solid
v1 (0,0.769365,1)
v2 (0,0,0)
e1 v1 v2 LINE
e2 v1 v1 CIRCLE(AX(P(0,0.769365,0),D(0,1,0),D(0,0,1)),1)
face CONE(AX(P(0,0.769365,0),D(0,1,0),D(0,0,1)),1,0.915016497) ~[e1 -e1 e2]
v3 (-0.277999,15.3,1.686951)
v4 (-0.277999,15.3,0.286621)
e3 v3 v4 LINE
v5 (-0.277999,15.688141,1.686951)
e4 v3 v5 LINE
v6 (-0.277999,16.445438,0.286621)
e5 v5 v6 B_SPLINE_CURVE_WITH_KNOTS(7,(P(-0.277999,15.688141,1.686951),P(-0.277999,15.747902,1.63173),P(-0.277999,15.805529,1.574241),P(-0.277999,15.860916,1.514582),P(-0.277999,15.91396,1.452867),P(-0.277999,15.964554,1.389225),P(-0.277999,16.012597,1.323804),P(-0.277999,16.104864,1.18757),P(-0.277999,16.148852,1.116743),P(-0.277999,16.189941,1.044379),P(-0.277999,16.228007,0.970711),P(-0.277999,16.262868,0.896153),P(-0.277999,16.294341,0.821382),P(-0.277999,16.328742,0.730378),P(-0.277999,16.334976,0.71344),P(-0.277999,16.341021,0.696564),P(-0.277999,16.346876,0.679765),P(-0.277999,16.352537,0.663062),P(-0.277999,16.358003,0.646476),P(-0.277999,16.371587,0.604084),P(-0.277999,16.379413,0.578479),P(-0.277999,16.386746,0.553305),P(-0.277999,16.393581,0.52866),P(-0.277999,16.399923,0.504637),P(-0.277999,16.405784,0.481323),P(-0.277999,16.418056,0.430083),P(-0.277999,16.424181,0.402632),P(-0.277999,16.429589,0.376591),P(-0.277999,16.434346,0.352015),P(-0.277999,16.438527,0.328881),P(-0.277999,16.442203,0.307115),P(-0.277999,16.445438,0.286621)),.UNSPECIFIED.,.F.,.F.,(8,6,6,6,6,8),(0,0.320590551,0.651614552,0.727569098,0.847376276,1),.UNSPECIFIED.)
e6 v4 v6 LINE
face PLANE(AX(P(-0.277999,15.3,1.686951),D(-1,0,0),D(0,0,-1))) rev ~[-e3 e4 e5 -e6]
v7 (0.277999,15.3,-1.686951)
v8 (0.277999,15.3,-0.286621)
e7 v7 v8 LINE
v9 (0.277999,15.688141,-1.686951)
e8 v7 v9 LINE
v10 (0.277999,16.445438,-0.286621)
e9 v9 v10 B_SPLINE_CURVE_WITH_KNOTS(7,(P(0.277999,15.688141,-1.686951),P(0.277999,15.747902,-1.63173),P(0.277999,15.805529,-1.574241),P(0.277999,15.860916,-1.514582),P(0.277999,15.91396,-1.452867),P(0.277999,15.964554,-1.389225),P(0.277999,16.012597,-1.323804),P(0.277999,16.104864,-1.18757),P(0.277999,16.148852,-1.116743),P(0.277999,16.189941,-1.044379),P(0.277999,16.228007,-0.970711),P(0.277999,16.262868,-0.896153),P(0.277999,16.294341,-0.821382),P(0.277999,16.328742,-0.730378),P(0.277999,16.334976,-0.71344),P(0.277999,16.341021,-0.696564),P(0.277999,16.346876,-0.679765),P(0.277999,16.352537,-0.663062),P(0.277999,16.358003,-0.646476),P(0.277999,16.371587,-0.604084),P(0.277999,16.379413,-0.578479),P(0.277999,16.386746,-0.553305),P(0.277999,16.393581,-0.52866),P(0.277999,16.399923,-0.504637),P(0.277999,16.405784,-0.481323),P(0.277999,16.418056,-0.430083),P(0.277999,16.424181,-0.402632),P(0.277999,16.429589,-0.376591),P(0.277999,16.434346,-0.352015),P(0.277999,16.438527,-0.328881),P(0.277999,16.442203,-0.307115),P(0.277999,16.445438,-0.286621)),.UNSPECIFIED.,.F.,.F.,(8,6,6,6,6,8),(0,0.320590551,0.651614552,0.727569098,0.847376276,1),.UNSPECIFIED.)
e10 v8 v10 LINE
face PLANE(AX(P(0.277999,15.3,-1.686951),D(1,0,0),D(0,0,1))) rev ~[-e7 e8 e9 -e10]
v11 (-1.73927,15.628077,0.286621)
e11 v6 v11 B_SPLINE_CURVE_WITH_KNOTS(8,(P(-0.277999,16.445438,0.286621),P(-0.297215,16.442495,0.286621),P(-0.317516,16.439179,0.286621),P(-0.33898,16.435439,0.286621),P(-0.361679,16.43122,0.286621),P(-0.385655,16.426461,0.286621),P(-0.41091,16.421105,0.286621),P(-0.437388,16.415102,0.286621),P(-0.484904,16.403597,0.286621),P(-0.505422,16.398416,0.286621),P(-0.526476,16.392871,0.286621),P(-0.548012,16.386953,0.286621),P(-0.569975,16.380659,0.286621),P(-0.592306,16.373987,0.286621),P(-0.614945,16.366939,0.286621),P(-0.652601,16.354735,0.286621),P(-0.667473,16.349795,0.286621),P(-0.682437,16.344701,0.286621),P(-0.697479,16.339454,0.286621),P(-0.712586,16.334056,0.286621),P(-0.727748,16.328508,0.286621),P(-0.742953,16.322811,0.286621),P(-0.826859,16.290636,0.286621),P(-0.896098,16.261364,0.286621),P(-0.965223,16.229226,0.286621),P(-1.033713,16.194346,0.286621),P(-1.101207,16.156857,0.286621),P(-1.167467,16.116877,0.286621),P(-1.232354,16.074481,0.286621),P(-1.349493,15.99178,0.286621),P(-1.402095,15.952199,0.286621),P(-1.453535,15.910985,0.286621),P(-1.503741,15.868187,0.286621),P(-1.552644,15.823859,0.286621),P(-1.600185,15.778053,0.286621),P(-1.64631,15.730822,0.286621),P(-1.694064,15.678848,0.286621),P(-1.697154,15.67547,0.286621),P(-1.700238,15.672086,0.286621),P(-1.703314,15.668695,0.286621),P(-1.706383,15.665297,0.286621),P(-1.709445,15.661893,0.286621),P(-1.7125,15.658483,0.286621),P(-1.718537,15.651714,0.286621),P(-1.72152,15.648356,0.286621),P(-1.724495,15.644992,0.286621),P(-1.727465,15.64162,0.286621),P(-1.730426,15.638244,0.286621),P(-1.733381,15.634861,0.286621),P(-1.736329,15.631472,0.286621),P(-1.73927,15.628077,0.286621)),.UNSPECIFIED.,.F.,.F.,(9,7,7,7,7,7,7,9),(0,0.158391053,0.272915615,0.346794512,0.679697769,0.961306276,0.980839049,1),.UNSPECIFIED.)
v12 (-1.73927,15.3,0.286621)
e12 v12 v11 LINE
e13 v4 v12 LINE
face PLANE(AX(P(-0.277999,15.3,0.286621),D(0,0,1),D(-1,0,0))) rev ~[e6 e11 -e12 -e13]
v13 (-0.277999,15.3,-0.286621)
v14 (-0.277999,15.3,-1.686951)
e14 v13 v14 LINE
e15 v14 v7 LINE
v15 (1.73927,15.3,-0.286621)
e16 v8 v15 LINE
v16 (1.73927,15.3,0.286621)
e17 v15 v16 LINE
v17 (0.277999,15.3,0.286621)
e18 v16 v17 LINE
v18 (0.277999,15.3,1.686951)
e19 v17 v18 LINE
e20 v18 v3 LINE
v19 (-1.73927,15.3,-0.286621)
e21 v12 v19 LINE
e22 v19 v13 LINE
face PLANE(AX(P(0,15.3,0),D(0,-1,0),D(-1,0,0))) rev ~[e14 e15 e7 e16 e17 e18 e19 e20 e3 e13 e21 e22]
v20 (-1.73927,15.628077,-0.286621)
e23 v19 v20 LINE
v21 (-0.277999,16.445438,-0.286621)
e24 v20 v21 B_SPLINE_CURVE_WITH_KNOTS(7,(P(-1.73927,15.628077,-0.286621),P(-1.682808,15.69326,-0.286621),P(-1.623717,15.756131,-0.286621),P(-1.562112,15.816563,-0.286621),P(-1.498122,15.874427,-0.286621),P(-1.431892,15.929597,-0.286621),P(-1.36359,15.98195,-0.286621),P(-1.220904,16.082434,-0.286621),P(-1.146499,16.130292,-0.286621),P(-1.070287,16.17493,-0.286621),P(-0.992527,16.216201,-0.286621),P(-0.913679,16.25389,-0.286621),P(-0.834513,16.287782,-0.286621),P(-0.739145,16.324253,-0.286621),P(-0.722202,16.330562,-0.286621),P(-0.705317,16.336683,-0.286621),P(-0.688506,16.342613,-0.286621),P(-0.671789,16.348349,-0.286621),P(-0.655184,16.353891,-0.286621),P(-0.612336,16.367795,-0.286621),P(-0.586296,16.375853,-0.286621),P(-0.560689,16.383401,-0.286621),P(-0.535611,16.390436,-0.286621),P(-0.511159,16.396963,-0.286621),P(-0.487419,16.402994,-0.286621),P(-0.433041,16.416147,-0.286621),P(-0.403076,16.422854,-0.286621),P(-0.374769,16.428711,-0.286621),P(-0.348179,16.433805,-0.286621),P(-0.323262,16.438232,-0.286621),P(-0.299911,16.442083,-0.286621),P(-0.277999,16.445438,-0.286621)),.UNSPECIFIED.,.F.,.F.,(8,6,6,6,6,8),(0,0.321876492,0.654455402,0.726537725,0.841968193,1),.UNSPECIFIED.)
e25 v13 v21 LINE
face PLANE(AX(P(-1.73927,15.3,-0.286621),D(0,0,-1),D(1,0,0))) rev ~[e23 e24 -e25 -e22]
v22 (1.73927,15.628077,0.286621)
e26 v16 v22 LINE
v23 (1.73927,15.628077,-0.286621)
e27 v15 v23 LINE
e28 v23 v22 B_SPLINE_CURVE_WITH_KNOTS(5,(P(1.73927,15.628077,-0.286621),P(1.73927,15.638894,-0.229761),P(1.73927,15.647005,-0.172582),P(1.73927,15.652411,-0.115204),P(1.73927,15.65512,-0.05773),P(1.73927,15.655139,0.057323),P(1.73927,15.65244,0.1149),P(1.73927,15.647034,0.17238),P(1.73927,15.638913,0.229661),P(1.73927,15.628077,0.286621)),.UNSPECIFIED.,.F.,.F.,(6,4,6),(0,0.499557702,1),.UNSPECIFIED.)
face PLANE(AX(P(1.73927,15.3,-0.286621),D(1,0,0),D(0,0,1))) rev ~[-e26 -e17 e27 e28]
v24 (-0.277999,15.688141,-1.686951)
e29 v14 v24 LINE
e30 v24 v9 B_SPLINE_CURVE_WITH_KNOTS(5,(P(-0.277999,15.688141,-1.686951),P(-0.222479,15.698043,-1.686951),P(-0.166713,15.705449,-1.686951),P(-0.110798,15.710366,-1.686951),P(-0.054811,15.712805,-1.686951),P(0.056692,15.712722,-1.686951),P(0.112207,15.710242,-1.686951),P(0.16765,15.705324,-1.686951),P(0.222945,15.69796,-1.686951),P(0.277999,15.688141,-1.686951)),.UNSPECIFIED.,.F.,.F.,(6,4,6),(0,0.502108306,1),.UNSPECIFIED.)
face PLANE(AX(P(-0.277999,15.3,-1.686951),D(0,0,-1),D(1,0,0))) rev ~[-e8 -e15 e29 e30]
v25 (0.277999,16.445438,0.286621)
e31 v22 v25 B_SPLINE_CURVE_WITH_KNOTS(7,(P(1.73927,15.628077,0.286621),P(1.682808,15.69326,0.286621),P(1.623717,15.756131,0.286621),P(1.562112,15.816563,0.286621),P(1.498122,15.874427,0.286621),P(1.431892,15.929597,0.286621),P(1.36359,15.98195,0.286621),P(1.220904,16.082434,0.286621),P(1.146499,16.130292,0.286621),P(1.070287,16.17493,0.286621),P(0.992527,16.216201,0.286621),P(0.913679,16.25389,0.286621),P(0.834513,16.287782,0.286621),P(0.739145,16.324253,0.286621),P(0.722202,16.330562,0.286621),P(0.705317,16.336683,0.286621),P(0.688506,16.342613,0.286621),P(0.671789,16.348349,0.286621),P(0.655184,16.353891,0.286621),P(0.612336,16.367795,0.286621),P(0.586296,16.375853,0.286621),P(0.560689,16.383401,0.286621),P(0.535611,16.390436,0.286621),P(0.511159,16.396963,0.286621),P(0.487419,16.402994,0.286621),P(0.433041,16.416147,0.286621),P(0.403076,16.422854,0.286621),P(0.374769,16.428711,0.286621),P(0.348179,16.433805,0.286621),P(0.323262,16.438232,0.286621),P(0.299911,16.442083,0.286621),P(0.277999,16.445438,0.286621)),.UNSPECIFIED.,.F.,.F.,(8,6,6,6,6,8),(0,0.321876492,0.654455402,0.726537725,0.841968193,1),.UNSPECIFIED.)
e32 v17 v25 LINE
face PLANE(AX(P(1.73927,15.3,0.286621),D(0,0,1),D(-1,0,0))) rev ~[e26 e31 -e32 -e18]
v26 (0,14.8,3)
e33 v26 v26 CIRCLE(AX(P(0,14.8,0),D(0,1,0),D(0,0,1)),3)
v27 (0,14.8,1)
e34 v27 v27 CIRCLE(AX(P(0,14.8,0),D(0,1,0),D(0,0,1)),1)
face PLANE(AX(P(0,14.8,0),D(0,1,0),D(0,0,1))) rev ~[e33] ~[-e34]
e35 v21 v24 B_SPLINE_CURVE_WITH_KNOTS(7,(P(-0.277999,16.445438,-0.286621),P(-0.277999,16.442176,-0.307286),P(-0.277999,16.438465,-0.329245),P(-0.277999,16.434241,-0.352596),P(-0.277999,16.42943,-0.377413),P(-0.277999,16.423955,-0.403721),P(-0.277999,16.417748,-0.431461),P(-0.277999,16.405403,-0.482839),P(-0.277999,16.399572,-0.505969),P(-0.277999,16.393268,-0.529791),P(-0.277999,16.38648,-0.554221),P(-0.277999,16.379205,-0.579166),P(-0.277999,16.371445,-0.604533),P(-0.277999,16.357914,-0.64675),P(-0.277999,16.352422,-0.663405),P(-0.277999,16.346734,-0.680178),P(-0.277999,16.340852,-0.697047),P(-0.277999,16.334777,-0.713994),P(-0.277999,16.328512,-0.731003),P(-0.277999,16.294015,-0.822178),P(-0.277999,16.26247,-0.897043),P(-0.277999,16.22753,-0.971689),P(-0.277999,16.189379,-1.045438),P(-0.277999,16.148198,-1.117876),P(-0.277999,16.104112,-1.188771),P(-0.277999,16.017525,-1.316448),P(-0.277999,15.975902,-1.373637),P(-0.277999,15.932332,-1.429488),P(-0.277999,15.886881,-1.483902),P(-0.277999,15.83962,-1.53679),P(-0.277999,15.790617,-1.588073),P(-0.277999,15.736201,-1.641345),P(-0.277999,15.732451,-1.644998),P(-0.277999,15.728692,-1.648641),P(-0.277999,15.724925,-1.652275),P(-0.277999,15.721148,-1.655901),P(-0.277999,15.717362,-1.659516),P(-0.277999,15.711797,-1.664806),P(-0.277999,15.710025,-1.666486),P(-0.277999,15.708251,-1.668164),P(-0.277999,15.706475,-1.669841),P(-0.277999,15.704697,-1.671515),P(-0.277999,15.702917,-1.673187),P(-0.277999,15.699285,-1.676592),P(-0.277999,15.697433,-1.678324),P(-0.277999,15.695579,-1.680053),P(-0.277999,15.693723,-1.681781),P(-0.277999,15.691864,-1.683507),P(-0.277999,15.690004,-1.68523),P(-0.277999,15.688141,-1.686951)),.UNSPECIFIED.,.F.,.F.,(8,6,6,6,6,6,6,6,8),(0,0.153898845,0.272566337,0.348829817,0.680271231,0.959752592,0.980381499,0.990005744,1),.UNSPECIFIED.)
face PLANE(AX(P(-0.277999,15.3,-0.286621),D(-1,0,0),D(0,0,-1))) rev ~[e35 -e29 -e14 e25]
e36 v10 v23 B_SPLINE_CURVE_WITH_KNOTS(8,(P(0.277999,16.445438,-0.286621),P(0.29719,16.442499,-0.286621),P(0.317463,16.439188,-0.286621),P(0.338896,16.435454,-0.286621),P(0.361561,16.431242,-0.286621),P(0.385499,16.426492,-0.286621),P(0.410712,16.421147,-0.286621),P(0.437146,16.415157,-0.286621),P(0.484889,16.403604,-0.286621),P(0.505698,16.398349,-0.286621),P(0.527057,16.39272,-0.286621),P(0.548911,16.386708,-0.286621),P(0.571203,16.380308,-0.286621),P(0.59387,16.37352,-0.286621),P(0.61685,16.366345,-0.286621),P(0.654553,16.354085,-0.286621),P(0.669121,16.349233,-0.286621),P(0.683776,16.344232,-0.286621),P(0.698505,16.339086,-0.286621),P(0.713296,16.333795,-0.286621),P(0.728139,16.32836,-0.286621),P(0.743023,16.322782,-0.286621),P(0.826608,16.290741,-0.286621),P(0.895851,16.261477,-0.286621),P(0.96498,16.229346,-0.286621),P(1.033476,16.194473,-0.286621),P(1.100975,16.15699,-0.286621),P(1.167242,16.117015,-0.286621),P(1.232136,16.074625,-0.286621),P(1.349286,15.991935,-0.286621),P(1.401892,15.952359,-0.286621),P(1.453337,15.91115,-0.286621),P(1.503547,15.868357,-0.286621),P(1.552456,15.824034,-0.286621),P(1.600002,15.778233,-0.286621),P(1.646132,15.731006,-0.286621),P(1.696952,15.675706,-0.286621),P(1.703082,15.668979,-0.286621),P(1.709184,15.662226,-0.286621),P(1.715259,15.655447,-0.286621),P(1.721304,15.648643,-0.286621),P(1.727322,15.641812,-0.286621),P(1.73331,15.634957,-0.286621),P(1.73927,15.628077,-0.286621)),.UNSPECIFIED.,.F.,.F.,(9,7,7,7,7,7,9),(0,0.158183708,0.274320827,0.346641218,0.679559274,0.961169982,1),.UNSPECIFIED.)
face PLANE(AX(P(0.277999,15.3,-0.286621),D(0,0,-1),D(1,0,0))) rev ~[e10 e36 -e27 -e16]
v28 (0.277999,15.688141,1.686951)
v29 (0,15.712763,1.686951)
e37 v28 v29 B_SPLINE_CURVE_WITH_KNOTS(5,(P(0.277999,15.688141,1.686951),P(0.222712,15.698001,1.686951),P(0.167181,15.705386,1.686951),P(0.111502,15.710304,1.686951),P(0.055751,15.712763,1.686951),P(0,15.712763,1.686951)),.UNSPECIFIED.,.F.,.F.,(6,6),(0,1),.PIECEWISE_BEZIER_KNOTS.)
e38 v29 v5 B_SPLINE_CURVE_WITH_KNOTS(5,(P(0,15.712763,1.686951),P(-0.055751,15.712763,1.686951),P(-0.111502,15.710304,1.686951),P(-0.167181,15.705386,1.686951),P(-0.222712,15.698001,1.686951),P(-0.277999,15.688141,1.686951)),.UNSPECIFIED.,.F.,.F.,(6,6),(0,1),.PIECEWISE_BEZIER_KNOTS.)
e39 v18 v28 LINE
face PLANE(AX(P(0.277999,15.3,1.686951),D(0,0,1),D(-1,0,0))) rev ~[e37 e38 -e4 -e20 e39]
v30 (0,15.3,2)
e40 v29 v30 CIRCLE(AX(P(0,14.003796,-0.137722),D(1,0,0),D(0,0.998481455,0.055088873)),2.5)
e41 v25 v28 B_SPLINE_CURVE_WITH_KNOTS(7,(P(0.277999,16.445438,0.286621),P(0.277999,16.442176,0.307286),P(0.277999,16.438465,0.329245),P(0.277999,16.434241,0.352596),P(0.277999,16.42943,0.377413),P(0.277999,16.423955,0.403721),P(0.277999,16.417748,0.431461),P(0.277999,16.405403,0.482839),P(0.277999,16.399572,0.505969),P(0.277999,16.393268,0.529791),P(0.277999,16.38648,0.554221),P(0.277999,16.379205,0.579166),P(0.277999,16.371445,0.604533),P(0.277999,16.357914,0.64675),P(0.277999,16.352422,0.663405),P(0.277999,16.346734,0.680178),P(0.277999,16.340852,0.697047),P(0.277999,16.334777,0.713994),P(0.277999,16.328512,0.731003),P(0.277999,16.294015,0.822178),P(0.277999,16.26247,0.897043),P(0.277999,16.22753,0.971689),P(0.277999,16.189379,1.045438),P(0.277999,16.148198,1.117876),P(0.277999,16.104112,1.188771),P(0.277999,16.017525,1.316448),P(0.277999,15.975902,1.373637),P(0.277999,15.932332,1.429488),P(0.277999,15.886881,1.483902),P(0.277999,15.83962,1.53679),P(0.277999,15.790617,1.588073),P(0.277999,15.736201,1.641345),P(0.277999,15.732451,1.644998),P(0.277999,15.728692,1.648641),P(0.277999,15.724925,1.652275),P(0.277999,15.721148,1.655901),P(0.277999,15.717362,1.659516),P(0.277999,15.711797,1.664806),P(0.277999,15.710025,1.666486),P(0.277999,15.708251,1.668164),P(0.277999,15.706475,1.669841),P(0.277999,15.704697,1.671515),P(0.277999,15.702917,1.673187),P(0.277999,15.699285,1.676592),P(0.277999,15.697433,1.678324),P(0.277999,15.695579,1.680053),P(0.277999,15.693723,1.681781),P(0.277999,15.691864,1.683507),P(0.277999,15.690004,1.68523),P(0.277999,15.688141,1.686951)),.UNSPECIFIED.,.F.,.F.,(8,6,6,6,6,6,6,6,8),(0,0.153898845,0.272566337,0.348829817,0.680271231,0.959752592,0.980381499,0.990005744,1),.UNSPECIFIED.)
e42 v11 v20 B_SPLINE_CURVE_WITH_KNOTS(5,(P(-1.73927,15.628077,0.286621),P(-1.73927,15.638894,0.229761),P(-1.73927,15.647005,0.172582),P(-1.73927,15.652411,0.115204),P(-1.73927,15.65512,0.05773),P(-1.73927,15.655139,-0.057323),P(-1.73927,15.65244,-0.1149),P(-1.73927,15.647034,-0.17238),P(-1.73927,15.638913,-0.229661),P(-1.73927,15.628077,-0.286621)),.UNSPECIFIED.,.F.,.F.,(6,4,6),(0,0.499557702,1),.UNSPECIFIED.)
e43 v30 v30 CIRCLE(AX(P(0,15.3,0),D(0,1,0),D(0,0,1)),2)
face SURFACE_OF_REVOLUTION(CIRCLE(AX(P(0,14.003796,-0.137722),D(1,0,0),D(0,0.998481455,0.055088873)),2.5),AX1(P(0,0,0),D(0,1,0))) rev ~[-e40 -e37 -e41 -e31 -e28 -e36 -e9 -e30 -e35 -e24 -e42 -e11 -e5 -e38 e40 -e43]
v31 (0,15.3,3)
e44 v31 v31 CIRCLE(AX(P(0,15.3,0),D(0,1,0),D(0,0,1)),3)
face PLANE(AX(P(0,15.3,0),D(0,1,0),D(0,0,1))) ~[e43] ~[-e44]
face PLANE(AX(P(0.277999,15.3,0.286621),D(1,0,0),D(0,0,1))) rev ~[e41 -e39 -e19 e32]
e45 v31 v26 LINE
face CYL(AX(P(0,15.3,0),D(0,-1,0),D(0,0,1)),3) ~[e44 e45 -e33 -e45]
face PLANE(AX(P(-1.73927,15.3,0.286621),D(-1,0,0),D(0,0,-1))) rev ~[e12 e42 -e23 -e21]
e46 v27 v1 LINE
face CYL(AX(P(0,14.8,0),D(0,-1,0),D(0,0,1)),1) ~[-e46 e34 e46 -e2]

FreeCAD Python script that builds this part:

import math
import FreeCAD as App
import Part
import Sketcher

V = App.Vector
Q = App.Units.Quantity


def add_polygon(sketch, points):
    """Adds a closed chain of lines whose ends are joined by coincident constraints."""
    first, n = sketch.GeometryCount, len(points)
    for a, b in zip(points, points[1:] + points[:1]):
        sketch.addGeometry(Part.LineSegment(App.Vector(*a, 0), App.Vector(*b, 0)), False)
    for i in range(n):
        sketch.addConstraint(Sketcher.Constraint("Coincident", first + i, 2, first + (i + 1) % n, 1))

doc = App.newDocument("Part")
params = doc.addObject("Spreadsheet::Sheet", "Params")
for row, (alias, value) in enumerate([
    ("sketch1_radius", "2.5 mm"),
    ("sketch1_height", "1 mm"),
    ("sketch1_height2", "2 mm"),
    ("sketch1_width", "16.5 mm"),
    ("sketch1_width2", "0.5 mm"),
    ("revolution_angle", "360 deg"),
    ("pocket1_length", "10 mm"),
], start=1):
    params.set(f"A{row}", alias)
    params.set(f"B{row}", "=" + value)
    params.setAlias(f"B{row}", alias)

body = doc.addObject("PartDesign::Body", "Body")

# Sketch on YZ plane
sketch1 = body.newObject("Sketcher::SketchObject", "Sketch")
sketch1.AttachmentSupport = (doc.getObject("YZ_Plane"), [""])
sketch1.MapMode = "FlatFace"
sketch1.addGeometry(Part.LineSegment(V(0, 0, 0), V(16.5, 0, 0)), False)
sketch1.addGeometry(Part.ArcOfCircle(Part.Circle(V(14, -0.1, 0), V(0, 0, 1), 2.5), math.radians(3), math.radians(59)), False)
sketch1.addGeometry(Part.LineSegment(V(15.3, 2, 0), V(15.3, 3, 0)), False)
sketch1.addGeometry(Part.LineSegment(V(15.3, 3, 0), V(14.8, 3, 0)), False)
sketch1.addGeometry(Part.LineSegment(V(14.8, 3, 0), V(14.8, 1, 0)), False)
sketch1.addGeometry(Part.LineSegment(V(14.8, 1, 0), V(0.8, 1, 0)), False)
sketch1.addGeometry(Part.LineSegment(V(0.8, 1, 0), V(0, 0, 0)), False)
sketch1.addConstraint(Sketcher.Constraint("Coincident", 0, 2, 1, 1))
sketch1.addConstraint(Sketcher.Constraint("Coincident", 1, 2, 2, 1))
sketch1.addConstraint(Sketcher.Constraint("Coincident", 2, 2, 3, 1))
sketch1.addConstraint(Sketcher.Constraint("Coincident", 3, 2, 4, 1))
sketch1.addConstraint(Sketcher.Constraint("Coincident", 4, 2, 5, 1))
sketch1.addConstraint(Sketcher.Constraint("Coincident", 5, 2, 6, 1))
sketch1.addConstraint(Sketcher.Constraint("Coincident", 6, 2, 0, 1))
sketch1.addConstraint(Sketcher.Constraint("Horizontal", 0))
sketch1.addConstraint(Sketcher.Constraint("Vertical", 2))
sketch1.addConstraint(Sketcher.Constraint("Horizontal", 3))
sketch1.addConstraint(Sketcher.Constraint("Vertical", 4))
sketch1.addConstraint(Sketcher.Constraint("Horizontal", 5))
sketch1.addConstraint(Sketcher.Constraint("Coincident", 6, 2, -1, 1))
sketch1.addConstraint(Sketcher.Constraint("Radius", 1, Q("2.5 mm")))
sketch1.addConstraint(Sketcher.Constraint("DistanceY", 2, 1, 2, 2, Q("1 mm")))
sketch1.addConstraint(Sketcher.Constraint("DistanceY", 4, 2, 4, 1, Q("2 mm")))
sketch1.addConstraint(Sketcher.Constraint("DistanceX", 0, 1, 0, 2, Q("16.5 mm")))
sketch1.addConstraint(Sketcher.Constraint("DistanceX", 3, 2, 3, 1, Q("0.5 mm")))
sketch1.addConstraint(Sketcher.Constraint("DistanceY", -1, 1, 1, 2, Q("2 mm")))
sketch1.addConstraint(Sketcher.Constraint("DistanceX", -1, 1, 1, 2, Q("15.3 mm")))
sketch1.addConstraint(Sketcher.Constraint("DistanceX", 5, 2, 5, 1, Q("14.030635 mm")))
sketch1.setExpression("Constraints[13]", "Params.sketch1_radius")
sketch1.setExpression("Constraints[14]", "Params.sketch1_height")
sketch1.setExpression("Constraints[15]", "Params.sketch1_height2")
sketch1.setExpression("Constraints[16]", "Params.sketch1_width")
sketch1.setExpression("Constraints[17]", "Params.sketch1_width2")
revolution = body.newObject("PartDesign::Revolution", "Revolution")
revolution.Profile = sketch1
revolution.ReferenceAxis = (sketch1, ["H_Axis"])
revolution.setExpression("Angle", "Params.revolution_angle")

# Sketch on XZ plane
sketch2 = body.newObject("Sketcher::SketchObject", "Sketch001")
sketch2.AttachmentSupport = (doc.getObject("XZ_Plane"), [""])
sketch2.MapMode = "FlatFace"
sketch2.AttachmentOffset = App.Placement(V(0, 0, -15.3), App.Rotation())
add_polygon(sketch2, [(-0.3, 1.7), (0.3, 1.7), (0.3, 0.3), (1.7, 0.3), (1.7, -0.3), (0.3, -0.3), (0.3, -1.7), (-0.3, -1.7), (-0.3, -0.3), (-1.7, -0.3), (-1.7, 0.3), (-0.3, 0.3)])  # lines 0-11
sketch2.addConstraint(Sketcher.Constraint("Horizontal", 0))
sketch2.addConstraint(Sketcher.Constraint("Vertical", 1))
sketch2.addConstraint(Sketcher.Constraint("Horizontal", 2))
sketch2.addConstraint(Sketcher.Constraint("Vertical", 3))
sketch2.addConstraint(Sketcher.Constraint("Horizontal", 4))
sketch2.addConstraint(Sketcher.Constraint("Vertical", 5))
sketch2.addConstraint(Sketcher.Constraint("Horizontal", 6))
sketch2.addConstraint(Sketcher.Constraint("Vertical", 7))
sketch2.addConstraint(Sketcher.Constraint("Horizontal", 8))
sketch2.addConstraint(Sketcher.Constraint("Vertical", 9))
sketch2.addConstraint(Sketcher.Constraint("Horizontal", 10))
sketch2.addConstraint(Sketcher.Constraint("Vertical", 11))
sketch2.addConstraint(Sketcher.Constraint("Symmetric", 0, 2, 6, 2, -1, 1))
sketch2.addConstraint(Sketcher.Constraint("Symmetric", 2, 2, 8, 2, -1, 1))
sketch2.addConstraint(Sketcher.Constraint("Symmetric", 4, 2, 10, 2, -1, 1))
sketch2.addConstraint(Sketcher.Constraint("Symmetric", 4, 2, 7, 2, -2))
sketch2.addConstraint(Sketcher.Constraint("DistanceX", 0, 1, 0, 2, Q("0.555999 mm")))
sketch2.addConstraint(Sketcher.Constraint("DistanceX", 2, 1, 2, 2, Q("1.461271 mm")))
sketch2.addConstraint(Sketcher.Constraint("DistanceY", 1, 2, 1, 1, Q("1.40033 mm")))
sketch2.addConstraint(Sketcher.Constraint("DistanceY", 5, 2, 0, 2, Q("3.373902 mm")))
pocket1 = body.newObject("PartDesign::Pocket", "Pocket")
pocket1.Profile = sketch2
pocket1.setExpression("Length", "Params.pocket1_length")

doc.recompute()
